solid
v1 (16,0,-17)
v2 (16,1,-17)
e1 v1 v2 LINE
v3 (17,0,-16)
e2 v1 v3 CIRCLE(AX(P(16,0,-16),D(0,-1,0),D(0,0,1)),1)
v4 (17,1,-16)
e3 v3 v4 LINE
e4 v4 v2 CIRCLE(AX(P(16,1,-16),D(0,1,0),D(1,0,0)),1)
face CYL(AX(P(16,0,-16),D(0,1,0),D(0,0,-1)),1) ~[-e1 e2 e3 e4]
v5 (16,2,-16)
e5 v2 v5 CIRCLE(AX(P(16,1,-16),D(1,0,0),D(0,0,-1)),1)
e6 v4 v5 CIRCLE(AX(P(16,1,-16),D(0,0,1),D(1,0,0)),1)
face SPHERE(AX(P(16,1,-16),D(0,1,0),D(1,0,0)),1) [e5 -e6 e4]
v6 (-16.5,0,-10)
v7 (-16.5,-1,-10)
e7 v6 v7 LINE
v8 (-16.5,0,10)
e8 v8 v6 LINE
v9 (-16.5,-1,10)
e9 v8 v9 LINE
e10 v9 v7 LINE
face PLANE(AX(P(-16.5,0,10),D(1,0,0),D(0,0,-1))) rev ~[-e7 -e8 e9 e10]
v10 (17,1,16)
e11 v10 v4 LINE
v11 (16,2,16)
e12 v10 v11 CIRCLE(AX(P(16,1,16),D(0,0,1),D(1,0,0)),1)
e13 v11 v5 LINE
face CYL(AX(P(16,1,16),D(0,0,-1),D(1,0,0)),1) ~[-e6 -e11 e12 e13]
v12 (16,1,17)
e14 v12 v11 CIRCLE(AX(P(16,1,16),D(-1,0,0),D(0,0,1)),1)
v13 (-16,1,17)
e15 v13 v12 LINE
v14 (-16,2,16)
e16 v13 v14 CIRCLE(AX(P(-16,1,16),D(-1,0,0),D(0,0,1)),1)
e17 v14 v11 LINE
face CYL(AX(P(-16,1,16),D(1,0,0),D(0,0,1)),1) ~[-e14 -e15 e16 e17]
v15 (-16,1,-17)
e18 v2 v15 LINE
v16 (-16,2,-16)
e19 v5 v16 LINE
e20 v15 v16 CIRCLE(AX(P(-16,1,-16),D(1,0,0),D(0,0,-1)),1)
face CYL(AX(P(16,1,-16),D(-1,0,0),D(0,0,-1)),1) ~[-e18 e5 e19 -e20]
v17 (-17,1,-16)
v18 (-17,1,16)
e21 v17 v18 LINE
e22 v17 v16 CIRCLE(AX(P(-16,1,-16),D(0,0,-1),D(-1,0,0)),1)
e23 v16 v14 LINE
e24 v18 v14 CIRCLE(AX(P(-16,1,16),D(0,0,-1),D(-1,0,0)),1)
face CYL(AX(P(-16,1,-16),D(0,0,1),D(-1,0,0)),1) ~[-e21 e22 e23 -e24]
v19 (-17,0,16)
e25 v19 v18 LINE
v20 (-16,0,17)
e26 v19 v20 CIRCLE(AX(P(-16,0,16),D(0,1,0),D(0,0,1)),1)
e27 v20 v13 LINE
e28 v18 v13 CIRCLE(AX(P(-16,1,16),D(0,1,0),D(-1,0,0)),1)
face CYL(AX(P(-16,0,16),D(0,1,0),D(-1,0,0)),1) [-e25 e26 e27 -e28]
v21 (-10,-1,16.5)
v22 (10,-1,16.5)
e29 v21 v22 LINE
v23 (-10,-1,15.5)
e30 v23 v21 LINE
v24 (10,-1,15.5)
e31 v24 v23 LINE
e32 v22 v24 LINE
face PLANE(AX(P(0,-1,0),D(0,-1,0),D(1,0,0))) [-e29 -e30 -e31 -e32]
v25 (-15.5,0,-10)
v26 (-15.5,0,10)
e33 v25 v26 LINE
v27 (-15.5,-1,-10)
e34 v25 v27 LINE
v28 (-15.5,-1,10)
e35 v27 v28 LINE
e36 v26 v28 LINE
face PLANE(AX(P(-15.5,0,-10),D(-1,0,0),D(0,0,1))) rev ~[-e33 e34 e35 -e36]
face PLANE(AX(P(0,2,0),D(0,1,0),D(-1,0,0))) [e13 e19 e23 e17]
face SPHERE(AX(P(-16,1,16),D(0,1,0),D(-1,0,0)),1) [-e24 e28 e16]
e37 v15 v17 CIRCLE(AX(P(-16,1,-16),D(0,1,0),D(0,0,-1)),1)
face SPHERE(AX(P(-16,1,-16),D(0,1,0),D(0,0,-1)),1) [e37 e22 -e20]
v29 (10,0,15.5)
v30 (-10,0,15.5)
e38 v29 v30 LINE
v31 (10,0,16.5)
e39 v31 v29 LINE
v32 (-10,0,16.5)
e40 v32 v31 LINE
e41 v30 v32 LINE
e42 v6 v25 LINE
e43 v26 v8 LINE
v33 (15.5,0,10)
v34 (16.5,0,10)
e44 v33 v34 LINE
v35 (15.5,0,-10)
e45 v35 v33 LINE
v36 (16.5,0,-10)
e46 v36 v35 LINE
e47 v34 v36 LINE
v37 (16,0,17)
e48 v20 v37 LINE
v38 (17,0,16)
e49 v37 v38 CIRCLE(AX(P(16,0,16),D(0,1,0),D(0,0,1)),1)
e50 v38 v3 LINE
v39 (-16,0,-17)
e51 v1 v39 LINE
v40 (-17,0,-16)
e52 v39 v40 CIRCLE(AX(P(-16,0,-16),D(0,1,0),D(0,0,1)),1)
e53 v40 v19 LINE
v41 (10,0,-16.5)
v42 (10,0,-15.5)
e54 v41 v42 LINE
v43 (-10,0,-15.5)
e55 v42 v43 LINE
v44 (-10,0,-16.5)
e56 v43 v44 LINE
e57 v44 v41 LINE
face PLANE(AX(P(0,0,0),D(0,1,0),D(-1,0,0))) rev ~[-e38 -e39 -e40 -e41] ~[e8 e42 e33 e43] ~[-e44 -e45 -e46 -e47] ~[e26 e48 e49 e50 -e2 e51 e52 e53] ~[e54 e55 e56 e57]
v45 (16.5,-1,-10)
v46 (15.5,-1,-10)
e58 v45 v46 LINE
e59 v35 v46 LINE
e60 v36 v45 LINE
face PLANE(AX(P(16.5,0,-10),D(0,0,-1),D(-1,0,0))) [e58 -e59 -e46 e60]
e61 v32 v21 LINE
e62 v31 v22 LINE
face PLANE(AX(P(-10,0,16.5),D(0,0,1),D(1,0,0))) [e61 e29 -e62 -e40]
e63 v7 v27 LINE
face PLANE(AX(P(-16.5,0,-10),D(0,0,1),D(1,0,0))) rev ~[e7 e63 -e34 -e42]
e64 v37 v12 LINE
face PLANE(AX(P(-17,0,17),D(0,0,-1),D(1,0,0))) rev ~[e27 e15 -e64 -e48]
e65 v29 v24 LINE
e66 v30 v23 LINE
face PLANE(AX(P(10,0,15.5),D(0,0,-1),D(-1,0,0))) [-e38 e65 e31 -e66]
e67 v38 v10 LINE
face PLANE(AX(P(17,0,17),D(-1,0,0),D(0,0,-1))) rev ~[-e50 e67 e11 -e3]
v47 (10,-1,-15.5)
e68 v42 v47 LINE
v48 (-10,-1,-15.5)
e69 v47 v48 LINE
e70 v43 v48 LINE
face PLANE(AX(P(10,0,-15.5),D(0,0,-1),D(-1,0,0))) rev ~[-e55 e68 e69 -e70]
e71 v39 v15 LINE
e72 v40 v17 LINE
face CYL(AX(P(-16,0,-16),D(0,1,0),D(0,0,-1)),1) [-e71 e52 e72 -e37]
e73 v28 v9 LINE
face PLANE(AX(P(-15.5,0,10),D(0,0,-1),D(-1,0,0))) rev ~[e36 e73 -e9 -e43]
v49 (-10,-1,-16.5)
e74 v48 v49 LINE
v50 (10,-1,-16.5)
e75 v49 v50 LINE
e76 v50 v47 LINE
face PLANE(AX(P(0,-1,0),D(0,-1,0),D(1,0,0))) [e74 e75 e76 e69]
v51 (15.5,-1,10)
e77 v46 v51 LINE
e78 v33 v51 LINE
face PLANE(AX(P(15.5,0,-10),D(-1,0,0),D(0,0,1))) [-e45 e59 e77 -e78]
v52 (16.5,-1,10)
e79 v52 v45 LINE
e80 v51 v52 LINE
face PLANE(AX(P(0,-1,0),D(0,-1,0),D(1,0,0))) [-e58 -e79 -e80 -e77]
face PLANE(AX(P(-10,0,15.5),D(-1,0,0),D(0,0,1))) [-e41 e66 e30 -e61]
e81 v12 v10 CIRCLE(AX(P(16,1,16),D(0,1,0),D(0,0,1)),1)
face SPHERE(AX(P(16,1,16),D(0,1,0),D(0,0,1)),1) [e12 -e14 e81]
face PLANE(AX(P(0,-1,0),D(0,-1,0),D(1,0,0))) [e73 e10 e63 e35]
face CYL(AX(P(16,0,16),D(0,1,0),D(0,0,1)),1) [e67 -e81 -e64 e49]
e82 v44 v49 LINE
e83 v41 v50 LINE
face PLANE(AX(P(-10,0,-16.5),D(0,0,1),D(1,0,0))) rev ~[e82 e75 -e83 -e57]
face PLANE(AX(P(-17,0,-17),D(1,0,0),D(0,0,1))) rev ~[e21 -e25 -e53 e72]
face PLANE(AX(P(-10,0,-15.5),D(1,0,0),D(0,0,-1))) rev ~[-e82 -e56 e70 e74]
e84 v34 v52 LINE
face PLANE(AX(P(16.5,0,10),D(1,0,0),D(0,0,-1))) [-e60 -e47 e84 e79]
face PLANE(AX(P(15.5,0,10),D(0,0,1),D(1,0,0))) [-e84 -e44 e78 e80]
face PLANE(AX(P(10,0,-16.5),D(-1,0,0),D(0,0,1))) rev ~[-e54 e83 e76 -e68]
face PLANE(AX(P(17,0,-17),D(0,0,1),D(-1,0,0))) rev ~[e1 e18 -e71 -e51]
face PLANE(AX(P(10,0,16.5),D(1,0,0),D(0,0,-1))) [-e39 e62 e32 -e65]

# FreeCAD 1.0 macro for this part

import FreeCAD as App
import Part
import Sketcher


def edges_at(feature, points):
    """Names of the edges that pass closest to the given points."""
    edges = feature.Shape.Edges
    near = lambda p: min(range(len(edges)), key=lambda i: edges[i].distToShape(Part.Vertex(*p))[0])
    return sorted({f"Edge{near(p) + 1}" for p in points})

doc = App.newDocument("Part")
body = doc.addObject("PartDesign::Body", "Body")

sketch1 = doc.addObject("Sketcher::SketchObject", "Sketch")
body.addObject(sketch1)
sketch1.AttachmentSupport = (doc.XZ_Plane, [""])
sketch1.MapMode = "FlatFace"
sketch1.addGeometry([
    Part.LineSegment(App.Vector(-17, -17, 0), App.Vector(-17, 17, 0)),
    Part.LineSegment(App.Vector(-17, 17, 0), App.Vector(17, 17, 0)),
    Part.LineSegment(App.Vector(17, 17, 0), App.Vector(17, -17, 0)),
    Part.LineSegment(App.Vector(17, -17, 0), App.Vector(-17, -17, 0)),
], False)
sketch1.addConstraint([
    Sketcher.Constraint("Coincident", 0, 2, 1, 1),
    Sketcher.Constraint("Coincident", 1, 2, 2, 1),
    Sketcher.Constraint("Coincident", 2, 2, 3, 1),
    Sketcher.Constraint("Coincident", 3, 2, 0, 1),
    Sketcher.Constraint("Vertical", 0),
    Sketcher.Constraint("Horizontal", 1),
    Sketcher.Constraint("Vertical", 2),
    Sketcher.Constraint("Horizontal", 3),
    Sketcher.Constraint("Symmetric", 0, 2, 2, 2, -1, 1),
    Sketcher.Constraint("Equal", 3, 0),
    Sketcher.Constraint("DistanceX", 1, 1, 1, 2, 34.0),
])
pad1 = doc.addObject("PartDesign::Pad", "Pad")
body.addObject(pad1)
pad1.Profile = sketch1
pad1.Length = 2
pad1.Reversed = True

sketch2 = doc.addObject("Sketcher::SketchObject", "Sketch001")
body.addObject(sketch2)
sketch2.AttachmentSupport = (doc.XZ_Plane, [""])
sketch2.MapMode = "FlatFace"
sketch2.addGeometry([
    Part.LineSegment(App.Vector(-16.5, 10, 0), App.Vector(-16.5, -10, 0)),
    Part.LineSegment(App.Vector(-16.5, -10, 0), App.Vector(-15.5, -10, 0)),
    Part.LineSegment(App.Vector(-15.5, -10, 0), App.Vector(-15.5, 10, 0)),
    Part.LineSegment(App.Vector(-15.5, 10, 0), App.Vector(-16.5, 10, 0)),
    Part.LineSegment(App.Vector(10, 16.5, 0), App.Vector(-10, 16.5, 0)),
    Part.LineSegment(App.Vector(-10, 16.5, 0), App.Vector(-10, 15.5, 0)),
    Part.LineSegment(App.Vector(-10, 15.5, 0), App.Vector(10, 15.5, 0)),
    Part.LineSegment(App.Vector(10, 15.5, 0), App.Vector(10, 16.5, 0)),
    Part.LineSegment(App.Vector(16.5, 10, 0), App.Vector(15.5, 10, 0)),
    Part.LineSegment(App.Vector(15.5, 10, 0), App.Vector(15.5, -10, 0)),
    Part.LineSegment(App.Vector(15.5, -10, 0), App.Vector(16.5, -10, 0)),
    Part.LineSegment(App.Vector(16.5, -10, 0), App.Vector(16.5, 10, 0)),
    Part.LineSegment(App.Vector(10, -16.5, 0), App.Vector(10, -15.5, 0)),
    Part.LineSegment(App.Vector(10, -15.5, 0), App.Vector(-10, -15.5, 0)),
    Part.LineSegment(App.Vector(-10, -15.5, 0), App.Vector(-10, -16.5, 0)),
    Part.LineSegment(App.Vector(-10, -16.5, 0), App.Vector(10, -16.5, 0)),
], False)
sketch2.addConstraint([
    Sketcher.Constraint("Coincident", 0, 2, 1, 1),
    Sketcher.Constraint("Coincident", 1, 2, 2, 1),
    Sketcher.Constraint("Coincident", 2, 2, 3, 1),
    Sketcher.Constraint("Coincident", 3, 2, 0, 1),
    Sketcher.Constraint("Coincident", 4, 2, 5, 1),
    Sketcher.Constraint("Coincident", 5, 2, 6, 1),
    Sketcher.Constraint("Coincident", 6, 2, 7, 1),
    Sketcher.Constraint("Coincident", 7, 2, 4, 1),
    Sketcher.Constraint("Coincident", 8, 2, 9, 1),
    Sketcher.Constraint("Coincident", 9, 2, 10, 1),
    Sketcher.Constraint("Coincident", 10, 2, 11, 1),
    Sketcher.Constraint("Coincident", 11, 2, 8, 1),
    Sketcher.Constraint("Coincident", 12, 2, 13, 1),
    Sketcher.Constraint("Coincident", 13, 2, 14, 1),
    Sketcher.Constraint("Coincident", 14, 2, 15, 1),
    Sketcher.Constraint("Coincident", 15, 2, 12, 1),
    Sketcher.Constraint("Vertical", 0),
    Sketcher.Constraint("Horizontal", 1),
    Sketcher.Constraint("Vertical", 2),
    Sketcher.Constraint("Horizontal", 3),
    Sketcher.Constraint("Horizontal", 4),
    Sketcher.Constraint("Vertical", 5),
    Sketcher.Constraint("Horizontal", 6),
    Sketcher.Constraint("Vertical", 7),
    Sketcher.Constraint("Horizontal", 8),
    Sketcher.Constraint("Vertical", 9),
    Sketcher.Constraint("Horizontal", 10),
    Sketcher.Constraint("Vertical", 11),
    Sketcher.Constraint("Vertical", 12),
    Sketcher.Constraint("Horizontal", 13),
    Sketcher.Constraint("Vertical", 14),
    Sketcher.Constraint("Horizontal", 15),
    Sketcher.Constraint("Symmetric", 1, 2, 8, 2, -1, 1),
    Sketcher.Constraint("Symmetric", 3, 2, 10, 2, -1, 1),
    Sketcher.Constraint("Symmetric", 5, 2, 12, 2, -1, 1),
    Sketcher.Constraint("Symmetric", 7, 2, 14, 2, -1, 1),
    Sketcher.Constraint("Horizontal", 3, 2, 8, 2),
    Sketcher.Constraint("Vertical", 7, 2, 12, 2),
    Sketcher.Constraint("Equal", 15, 0),
    Sketcher.Constraint("Equal", 10, 5),
    Sketcher.Constraint("DistanceX", 1, 1, 1, 2, 1.0),
    Sketcher.Constraint("DistanceX", 4, 2, 4, 1, 20.0),
    Sketcher.Constraint("DistanceX", 2, 2, 8, 2, 31.0),
    Sketcher.Constraint("DistanceY", -1, 1, 4, 2, 16.5),
])
pad2 = doc.addObject("PartDesign::Pad", "Pad001")
body.addObject(pad2)
pad2.Profile = sketch2
pad2.Length = 1
doc.recompute()

fillet = doc.addObject("PartDesign::Fillet", "Fillet")
body.addObject(fillet)
fillet.Base = (pad2, edges_at(pad2, [(17, 1, -17)]))
fillet.Radius = 1
doc.recompute()

fillet2 = doc.addObject("PartDesign::Fillet", "Fillet001")
body.addObject(fillet2)
fillet2.Base = (fillet, edges_at(fillet, [(-17, 1, -17)]))
fillet2.Radius = 1
doc.recompute()

fillet3 = doc.addObject("PartDesign::Fillet", "Fillet002")
body.addObject(fillet3)
fillet3.Base = (fillet2, edges_at(fillet2, [(-17, 1, 17)]))
fillet3.Radius = 1
doc.recompute()

fillet4 = doc.addObject("PartDesign::Fillet", "Fillet003")
body.addObject(fillet4)
fillet4.Base = (fillet3, edges_at(fillet3, [(17, 1, 17)]))
fillet4.Radius = 1
doc.recompute()

fillet5 = doc.addObject("PartDesign::Fillet", "Fillet004")
body.addObject(fillet5)
fillet5.Base = (fillet4, edges_at(fillet4, [
    (-16.707, 2, -16.707),
    (-17, 2, 0),
    (-16.707, 2, 16.707),
    (0, 2, 17),
    (16.707, 2, 16.707),
    (17, 2, 0),
    (16.707, 2, -16.707),
    (0, 2, -17),
]))
fillet5.Radius = 1

doc.recompute()
